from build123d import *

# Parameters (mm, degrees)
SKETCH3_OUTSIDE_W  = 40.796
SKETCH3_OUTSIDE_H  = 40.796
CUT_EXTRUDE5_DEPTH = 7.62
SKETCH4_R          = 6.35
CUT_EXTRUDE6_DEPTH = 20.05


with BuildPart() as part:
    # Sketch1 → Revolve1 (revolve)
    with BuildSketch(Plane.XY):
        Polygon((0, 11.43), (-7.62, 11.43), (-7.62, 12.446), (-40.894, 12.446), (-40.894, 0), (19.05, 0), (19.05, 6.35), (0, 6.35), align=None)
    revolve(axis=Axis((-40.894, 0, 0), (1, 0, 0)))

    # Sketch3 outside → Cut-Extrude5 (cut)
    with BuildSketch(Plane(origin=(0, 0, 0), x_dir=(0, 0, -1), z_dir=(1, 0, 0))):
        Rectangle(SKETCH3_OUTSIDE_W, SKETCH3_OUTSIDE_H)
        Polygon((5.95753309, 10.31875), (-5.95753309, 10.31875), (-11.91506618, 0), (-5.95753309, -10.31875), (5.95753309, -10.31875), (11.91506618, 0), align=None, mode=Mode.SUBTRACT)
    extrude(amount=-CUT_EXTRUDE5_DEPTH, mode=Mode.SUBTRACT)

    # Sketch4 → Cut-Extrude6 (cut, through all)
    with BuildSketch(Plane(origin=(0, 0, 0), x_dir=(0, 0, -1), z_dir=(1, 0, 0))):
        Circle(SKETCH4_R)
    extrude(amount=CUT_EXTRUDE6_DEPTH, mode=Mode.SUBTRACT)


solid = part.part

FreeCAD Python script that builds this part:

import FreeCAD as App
import Part
import Sketcher
Q = App.Units.Quantity

doc = App.newDocument("Part")
body = doc.addObject("PartDesign::Body", "Body")

# Sketch on XY plane
sketch1 = body.newObject("Sketcher::SketchObject", "Sketch")
sketch1.AttachmentSupport = (doc.getObject("XY_Plane"), [""])
sketch1.MapMode = "FlatFace"
sketch1.addGeometry([
    Part.LineSegment(App.Vector(0, 11.43, 0), App.Vector(-7.62, 11.43, 0)),  # 0
    Part.LineSegment(App.Vector(-7.62, 11.43, 0), App.Vector(-7.62, 12.446, 0)),  # 1
    Part.LineSegment(App.Vector(-7.62, 12.446, 0), App.Vector(-40.894, 12.446, 0)),  # 2
    Part.LineSegment(App.Vector(-40.894, 12.446, 0), App.Vector(-40.894, 0, 0)),  # 3
    Part.LineSegment(App.Vector(-40.894, 0, 0), App.Vector(19.05, 0, 0)),  # 4
    Part.LineSegment(App.Vector(19.05, 0, 0), App.Vector(19.05, 6.35, 0)),  # 5
    Part.LineSegment(App.Vector(19.05, 6.35, 0), App.Vector(0, 6.35, 0)),  # 6
    Part.LineSegment(App.Vector(0, 6.35, 0), App.Vector(0, 11.43, 0)),  # 7
], False)
sketch1.addConstraint([
    Sketcher.Constraint("Coincident", 0, 2, 1, 1),
    Sketcher.Constraint("Coincident", 1, 2, 2, 1),
    Sketcher.Constraint("Coincident", 2, 2, 3, 1),
    Sketcher.Constraint("Coincident", 3, 2, 4, 1),
    Sketcher.Constraint("Coincident", 4, 2, 5, 1),
    Sketcher.Constraint("Coincident", 5, 2, 6, 1),
    Sketcher.Constraint("Coincident", 6, 2, 7, 1),
    Sketcher.Constraint("Coincident", 7, 2, 0, 1),
    Sketcher.Constraint("Horizontal", 0),
    Sketcher.Constraint("Vertical", 1),
    Sketcher.Constraint("Horizontal", 2),
    Sketcher.Constraint("Vertical", 3),
    Sketcher.Constraint("Horizontal", 4),
    Sketcher.Constraint("Vertical", 5),
    Sketcher.Constraint("Horizontal", 6),
    Sketcher.Constraint("Vertical", 7),
    Sketcher.Constraint("PointOnObject", 3, 2, -1),
    Sketcher.Constraint("PointOnObject", 6, 2, -2),
    Sketcher.Constraint("DistanceX", 0, 2, 0, 1, Q("0.3 in")),
    Sketcher.Constraint("DistanceY", 7, 1, 7, 2, Q("0.2 in")),
    Sketcher.Constraint("DistanceX", 2, 2, 2, 1, Q("1.31 in")),
    Sketcher.Constraint("DistanceX", 4, 1, 4, 2, Q("2.36 in")),
    Sketcher.Constraint("DistanceY", 1, 1, 1, 2, Q("0.04 in")),
    Sketcher.Constraint("DistanceY", 3, 2, 3, 1, Q("0.49 in")),
])
revolution = body.newObject("PartDesign::Revolution", "Revolution")
revolution.Profile = sketch1
revolution.ReferenceAxis = (sketch1, ["H_Axis"])
revolution.Angle = 360

# Sketch on YZ plane
sketch2 = body.newObject("Sketcher::SketchObject", "Sketch001")
sketch2.AttachmentSupport = (doc.getObject("YZ_Plane"), [""])
sketch2.MapMode = "FlatFace"
sketch2.addGeometry([
    Part.LineSegment(App.Vector(20.398, 20.398, 0), App.Vector(-20.398, 20.398, 0)),  # 0
    Part.LineSegment(App.Vector(-20.398, 20.398, 0), App.Vector(-20.398, -20.398, 0)),  # 1
    Part.LineSegment(App.Vector(-20.398, -20.398, 0), App.Vector(20.398, -20.398, 0)),  # 2
    Part.LineSegment(App.Vector(20.398, -20.398, 0), App.Vector(20.398, 20.398, 0)),  # 3
    Part.LineSegment(App.Vector(10.31875, 5.957533, 0), App.Vector(10.31875, -5.957533, 0)),  # 4
    Part.LineSegment(App.Vector(10.31875, -5.957533, 0), App.Vector(0, -11.915066, 0)),  # 5
    Part.LineSegment(App.Vector(0, -11.915066, 0), App.Vector(-10.31875, -5.957533, 0)),  # 6
    Part.LineSegment(App.Vector(-10.31875, -5.957533, 0), App.Vector(-10.31875, 5.957533, 0)),  # 7
    Part.LineSegment(App.Vector(-10.31875, 5.957533, 0), App.Vector(0, 11.915066, 0)),  # 8
    Part.LineSegment(App.Vector(0, 11.915066, 0), App.Vector(10.31875, 5.957533, 0)),  # 9
], False)
sketch2.addConstraint([
    Sketcher.Constraint("Coincident", 0, 2, 1, 1),
    Sketcher.Constraint("Coincident", 1, 2, 2, 1),
    Sketcher.Constraint("Coincident", 2, 2, 3, 1),
    Sketcher.Constraint("Coincident", 3, 2, 0, 1),
    Sketcher.Constraint("Coincident", 4, 2, 5, 1),
    Sketcher.Constraint("Coincident", 5, 2, 6, 1),
    Sketcher.Constraint("Coincident", 6, 2, 7, 1),
    Sketcher.Constraint("Coincident", 7, 2, 8, 1),
    Sketcher.Constraint("Coincident", 8, 2, 9, 1),
    Sketcher.Constraint("Coincident", 9, 2, 4, 1),
    Sketcher.Constraint("Horizontal", 0),
    Sketcher.Constraint("Vertical", 1),
    Sketcher.Constraint("Horizontal", 2),
    Sketcher.Constraint("Vertical", 3),
    Sketcher.Constraint("Vertical", 4),
    Sketcher.Constraint("Vertical", 7),
    Sketcher.Constraint("Symmetric", 0, 2, 2, 2, -1, 1),
    Sketcher.Constraint("Symmetric", 4, 2, 7, 2, -1, 1),
    Sketcher.Constraint("Symmetric", 5, 2, 8, 2, -1, 1),
    Sketcher.Constraint("PointOnObject", 5, 2, -2),
    Sketcher.Constraint("Parallel", 6, 9),
    Sketcher.Constraint("Horizontal", 4, 2, 6, 2),
    Sketcher.Constraint("Equal", 2, 1),
    Sketcher.Constraint("Angle", 5, Q("-150 deg")),
    Sketcher.Constraint("DistanceX", -1, 1, 4, 2, Q("0.40625 in")),
    Sketcher.Constraint("DistanceX", 0, 2, 0, 1, 40.796),
    Sketcher.Constraint("DistanceY", 5, 2, 7, 2, 17.872599),
])
pocket1 = body.newObject("PartDesign::Pocket", "Pocket")
pocket1.Profile = sketch2
pocket1.Length = Q("0.3 in")

# Sketch on YZ plane
sketch3 = body.newObject("Sketcher::SketchObject", "Sketch002")
sketch3.AttachmentSupport = (doc.getObject("YZ_Plane"), [""])
sketch3.MapMode = "FlatFace"
sketch3.addGeometry(Part.Circle(App.Vector(0, 0, 0), App.Vector(0, 0, 1), 6.35), False)
sketch3.addConstraint([
    Sketcher.Constraint("Coincident", 0, 3, -1, 1),
    Sketcher.Constraint("Diameter", 0, Q("0.5 in")),
])
pocket2 = body.newObject("PartDesign::Pocket", "Pocket001")
pocket2.Profile = sketch3
pocket2.Type = "ThroughAll"
pocket2.Reversed = True

doc.recompute()
